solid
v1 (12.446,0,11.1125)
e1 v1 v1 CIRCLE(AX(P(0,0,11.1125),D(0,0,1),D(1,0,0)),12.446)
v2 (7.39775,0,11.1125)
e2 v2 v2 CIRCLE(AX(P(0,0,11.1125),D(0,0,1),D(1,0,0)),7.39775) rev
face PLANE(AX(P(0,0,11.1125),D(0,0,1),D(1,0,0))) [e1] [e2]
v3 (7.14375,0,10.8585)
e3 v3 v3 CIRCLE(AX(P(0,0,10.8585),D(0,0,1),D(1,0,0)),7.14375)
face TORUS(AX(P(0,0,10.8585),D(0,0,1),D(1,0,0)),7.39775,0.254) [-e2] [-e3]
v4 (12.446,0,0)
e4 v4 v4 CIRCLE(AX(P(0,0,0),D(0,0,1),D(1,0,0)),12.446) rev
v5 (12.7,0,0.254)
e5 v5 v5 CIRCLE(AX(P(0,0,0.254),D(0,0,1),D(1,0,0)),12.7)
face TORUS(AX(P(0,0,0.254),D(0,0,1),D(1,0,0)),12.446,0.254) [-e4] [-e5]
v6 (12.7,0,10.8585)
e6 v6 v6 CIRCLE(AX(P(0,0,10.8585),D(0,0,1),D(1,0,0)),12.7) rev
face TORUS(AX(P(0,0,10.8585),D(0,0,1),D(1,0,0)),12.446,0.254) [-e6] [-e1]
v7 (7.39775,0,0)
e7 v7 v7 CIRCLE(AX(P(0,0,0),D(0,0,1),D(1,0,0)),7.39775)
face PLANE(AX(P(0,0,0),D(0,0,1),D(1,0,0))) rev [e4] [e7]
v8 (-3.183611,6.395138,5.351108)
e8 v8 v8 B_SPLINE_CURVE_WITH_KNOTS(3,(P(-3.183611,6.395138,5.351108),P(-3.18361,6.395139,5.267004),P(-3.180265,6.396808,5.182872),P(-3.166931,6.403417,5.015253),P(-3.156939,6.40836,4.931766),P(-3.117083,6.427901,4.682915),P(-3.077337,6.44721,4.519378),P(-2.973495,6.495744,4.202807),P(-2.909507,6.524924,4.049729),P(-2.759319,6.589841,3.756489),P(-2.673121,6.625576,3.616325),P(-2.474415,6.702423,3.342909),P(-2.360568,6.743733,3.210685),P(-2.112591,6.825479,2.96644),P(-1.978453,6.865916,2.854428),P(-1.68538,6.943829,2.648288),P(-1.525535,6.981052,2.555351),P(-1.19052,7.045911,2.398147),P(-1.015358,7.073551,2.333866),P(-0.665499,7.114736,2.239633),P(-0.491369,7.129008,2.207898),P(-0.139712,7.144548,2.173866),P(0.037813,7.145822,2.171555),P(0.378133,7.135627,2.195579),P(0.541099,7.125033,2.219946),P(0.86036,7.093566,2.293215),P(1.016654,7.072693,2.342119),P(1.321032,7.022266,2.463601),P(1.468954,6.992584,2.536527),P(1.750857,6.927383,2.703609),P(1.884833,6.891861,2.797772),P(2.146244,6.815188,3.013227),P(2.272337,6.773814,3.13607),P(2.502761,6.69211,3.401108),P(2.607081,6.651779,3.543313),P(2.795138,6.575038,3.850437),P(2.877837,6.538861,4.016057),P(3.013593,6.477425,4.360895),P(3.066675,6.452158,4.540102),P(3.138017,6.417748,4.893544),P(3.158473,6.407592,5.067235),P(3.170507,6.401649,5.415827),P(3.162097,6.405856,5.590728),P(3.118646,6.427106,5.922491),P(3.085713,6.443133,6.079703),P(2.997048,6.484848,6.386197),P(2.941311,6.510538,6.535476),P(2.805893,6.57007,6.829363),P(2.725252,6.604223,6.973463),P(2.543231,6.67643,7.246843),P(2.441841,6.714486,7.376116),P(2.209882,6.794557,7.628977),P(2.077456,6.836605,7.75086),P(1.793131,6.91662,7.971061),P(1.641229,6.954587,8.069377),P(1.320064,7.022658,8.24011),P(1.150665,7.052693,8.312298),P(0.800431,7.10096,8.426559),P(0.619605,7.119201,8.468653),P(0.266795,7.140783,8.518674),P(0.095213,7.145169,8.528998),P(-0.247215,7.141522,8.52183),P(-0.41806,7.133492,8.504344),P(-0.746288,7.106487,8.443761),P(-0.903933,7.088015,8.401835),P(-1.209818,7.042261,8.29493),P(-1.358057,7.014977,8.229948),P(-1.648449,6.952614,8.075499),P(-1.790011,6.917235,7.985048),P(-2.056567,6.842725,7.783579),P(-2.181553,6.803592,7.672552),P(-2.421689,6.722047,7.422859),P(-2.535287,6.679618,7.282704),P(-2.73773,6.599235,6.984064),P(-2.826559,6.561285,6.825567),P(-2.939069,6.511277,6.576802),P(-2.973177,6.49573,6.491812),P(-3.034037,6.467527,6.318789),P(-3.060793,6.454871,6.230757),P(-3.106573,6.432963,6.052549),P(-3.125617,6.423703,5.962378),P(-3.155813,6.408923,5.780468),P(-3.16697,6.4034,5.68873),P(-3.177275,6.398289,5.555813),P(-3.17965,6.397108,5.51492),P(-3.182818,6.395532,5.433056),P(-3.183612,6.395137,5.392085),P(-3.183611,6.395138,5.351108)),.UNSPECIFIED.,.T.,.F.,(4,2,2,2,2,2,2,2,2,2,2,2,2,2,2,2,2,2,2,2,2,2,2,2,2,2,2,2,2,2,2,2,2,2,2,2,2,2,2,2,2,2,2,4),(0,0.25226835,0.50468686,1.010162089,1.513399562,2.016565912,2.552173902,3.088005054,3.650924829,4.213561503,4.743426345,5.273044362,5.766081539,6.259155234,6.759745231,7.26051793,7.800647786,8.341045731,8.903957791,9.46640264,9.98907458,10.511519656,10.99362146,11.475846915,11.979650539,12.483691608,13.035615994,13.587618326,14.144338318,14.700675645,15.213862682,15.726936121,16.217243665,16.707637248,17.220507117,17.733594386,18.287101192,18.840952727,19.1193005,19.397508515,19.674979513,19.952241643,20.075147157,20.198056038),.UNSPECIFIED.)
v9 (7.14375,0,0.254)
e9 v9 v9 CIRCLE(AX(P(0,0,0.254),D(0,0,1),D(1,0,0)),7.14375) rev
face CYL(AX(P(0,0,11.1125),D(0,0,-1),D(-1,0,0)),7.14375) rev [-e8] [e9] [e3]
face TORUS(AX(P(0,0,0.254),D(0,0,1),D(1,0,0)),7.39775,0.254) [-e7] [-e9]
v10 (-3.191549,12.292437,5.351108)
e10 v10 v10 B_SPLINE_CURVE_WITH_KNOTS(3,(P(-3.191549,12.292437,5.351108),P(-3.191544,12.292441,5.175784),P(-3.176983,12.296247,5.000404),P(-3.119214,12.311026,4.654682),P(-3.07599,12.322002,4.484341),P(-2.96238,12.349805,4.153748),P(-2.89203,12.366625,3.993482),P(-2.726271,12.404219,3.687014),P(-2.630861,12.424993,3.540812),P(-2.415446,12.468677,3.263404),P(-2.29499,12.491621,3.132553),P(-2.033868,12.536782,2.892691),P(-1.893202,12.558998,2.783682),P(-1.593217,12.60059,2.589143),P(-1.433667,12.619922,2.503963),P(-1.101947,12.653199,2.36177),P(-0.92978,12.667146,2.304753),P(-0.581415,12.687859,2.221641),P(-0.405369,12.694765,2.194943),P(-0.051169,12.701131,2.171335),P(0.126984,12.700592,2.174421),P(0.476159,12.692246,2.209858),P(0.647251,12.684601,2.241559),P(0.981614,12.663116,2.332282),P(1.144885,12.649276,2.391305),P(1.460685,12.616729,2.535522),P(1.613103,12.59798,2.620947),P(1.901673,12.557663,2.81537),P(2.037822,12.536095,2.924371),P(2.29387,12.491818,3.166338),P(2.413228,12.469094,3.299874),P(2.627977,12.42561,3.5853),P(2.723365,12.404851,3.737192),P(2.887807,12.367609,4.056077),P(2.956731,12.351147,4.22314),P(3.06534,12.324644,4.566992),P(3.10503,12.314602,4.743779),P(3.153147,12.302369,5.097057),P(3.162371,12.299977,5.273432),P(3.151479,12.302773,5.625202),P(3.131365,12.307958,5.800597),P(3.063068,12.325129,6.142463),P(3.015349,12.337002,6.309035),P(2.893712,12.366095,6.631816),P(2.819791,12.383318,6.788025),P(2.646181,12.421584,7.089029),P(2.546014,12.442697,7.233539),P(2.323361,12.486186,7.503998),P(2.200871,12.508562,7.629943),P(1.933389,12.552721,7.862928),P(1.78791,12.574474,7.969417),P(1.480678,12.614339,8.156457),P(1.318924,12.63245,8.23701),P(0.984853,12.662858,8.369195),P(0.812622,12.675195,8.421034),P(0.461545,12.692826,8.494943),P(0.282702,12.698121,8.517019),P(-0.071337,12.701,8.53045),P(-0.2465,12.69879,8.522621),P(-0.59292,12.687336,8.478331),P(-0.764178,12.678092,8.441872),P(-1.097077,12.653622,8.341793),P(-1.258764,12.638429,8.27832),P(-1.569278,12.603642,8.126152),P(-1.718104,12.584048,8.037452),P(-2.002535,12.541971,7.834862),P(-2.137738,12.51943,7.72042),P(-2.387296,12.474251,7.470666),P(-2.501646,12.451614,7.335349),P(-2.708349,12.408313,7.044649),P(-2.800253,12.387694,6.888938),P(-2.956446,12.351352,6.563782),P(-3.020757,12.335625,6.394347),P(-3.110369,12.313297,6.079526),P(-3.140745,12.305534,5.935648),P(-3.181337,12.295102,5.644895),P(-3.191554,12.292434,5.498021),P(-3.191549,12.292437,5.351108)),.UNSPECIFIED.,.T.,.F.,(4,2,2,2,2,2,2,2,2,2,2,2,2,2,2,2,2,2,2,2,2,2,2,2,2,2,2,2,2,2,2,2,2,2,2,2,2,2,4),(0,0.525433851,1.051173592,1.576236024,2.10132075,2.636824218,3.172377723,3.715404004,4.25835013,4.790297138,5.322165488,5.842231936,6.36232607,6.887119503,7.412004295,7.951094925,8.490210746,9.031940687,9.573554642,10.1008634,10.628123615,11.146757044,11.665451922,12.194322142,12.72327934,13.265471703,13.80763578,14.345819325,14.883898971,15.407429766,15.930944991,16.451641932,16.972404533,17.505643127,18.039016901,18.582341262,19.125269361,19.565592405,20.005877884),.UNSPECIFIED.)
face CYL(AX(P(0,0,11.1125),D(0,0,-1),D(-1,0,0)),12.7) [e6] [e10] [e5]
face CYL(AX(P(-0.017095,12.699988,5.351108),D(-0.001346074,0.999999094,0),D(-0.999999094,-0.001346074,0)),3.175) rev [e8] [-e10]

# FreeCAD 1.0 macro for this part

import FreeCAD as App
import Part
import Sketcher
Q = App.Units.Quantity


def edges_at(feature, points):
    """Names of the edges that pass closest to the given points."""
    edges = feature.Shape.Edges
    near = lambda p: min(range(len(edges)), key=lambda i: edges[i].distToShape(Part.Vertex(*p))[0])
    return sorted({f"Edge{near(p) + 1}" for p in points})

doc = App.newDocument("Part")
body = doc.addObject("PartDesign::Body", "Body")

# Sketch on XY plane
sketch1 = doc.addObject("Sketcher::SketchObject", "Sketch")
body.addObject(sketch1)
sketch1.AttachmentSupport = (doc.XY_Plane, [""])
sketch1.MapMode = "FlatFace"
sketch1.addGeometry([
    Part.Circle(App.Vector(0, 0, 0), App.Vector(0, 0, 1), 12.7),
    Part.Circle(App.Vector(0, 0, 0), App.Vector(0, 0, 1), 7.14375),
], False)
sketch1.addConstraint([
    Sketcher.Constraint("Coincident", 0, 3, -1, 1),
    Sketcher.Constraint("Coincident", 1, 3, -1, 1),
    Sketcher.Constraint("Diameter", 0, Q("1 in")),
    Sketcher.Constraint("Diameter", 1, Q("0.5625 in")),
])
pad1 = doc.addObject("PartDesign::Pad", "Pad")
body.addObject(pad1)
pad1.Profile = sketch1
pad1.Length = Q("0.4375 in")
doc.recompute()

fillet = doc.addObject("PartDesign::Fillet", "Fillet")
body.addObject(fillet)
fillet.Base = (pad1, edges_at(pad1, [
    (-12.7, 0, 0),
    (-12.7, 0, 11.113),
    (-7.144, 0, 0),
    (-7.144, 0, 11.113),
]))
fillet.Radius = Q("0.01 in")

# Sketch on an angled plane
sketch2 = doc.addObject("Sketcher::SketchObject", "Sketch001")
body.addObject(sketch2)
sketch2.Placement = App.Placement(App.Vector(-0.017095, 12.699988, 0), App.Rotation(App.Vector(0.999999094, 0.001346074, 0), App.Vector(0, 0, -1), App.Vector(-0.001346074, 0.999999094, 0), "ZXY"))
sketch2.addGeometry(Part.Circle(App.Vector(0, -5.351108, 0), App.Vector(0, 0, 1), 3.175), False)
sketch2.addConstraint([
    Sketcher.Constraint("PointOnObject", 0, 3, -2),
    Sketcher.Constraint("Diameter", 0, Q("0.25 in")),
    Sketcher.Constraint("DistanceY", 0, 3, -1, 1, 5.351108),
])
doc.recompute()
hole = doc.addObject("PartDesign::Hole", "Hole")
body.addObject(hole)
hole.Profile = sketch2
hole.ThreadType = "None"
hole.Diameter = Q("0.25 in")
hole.DepthType = "Dimension"
hole.Depth = Q("0.43 in")
hole.DrillPoint = "Angled"
hole.DrillPointAngle = 118

doc.recompute()
